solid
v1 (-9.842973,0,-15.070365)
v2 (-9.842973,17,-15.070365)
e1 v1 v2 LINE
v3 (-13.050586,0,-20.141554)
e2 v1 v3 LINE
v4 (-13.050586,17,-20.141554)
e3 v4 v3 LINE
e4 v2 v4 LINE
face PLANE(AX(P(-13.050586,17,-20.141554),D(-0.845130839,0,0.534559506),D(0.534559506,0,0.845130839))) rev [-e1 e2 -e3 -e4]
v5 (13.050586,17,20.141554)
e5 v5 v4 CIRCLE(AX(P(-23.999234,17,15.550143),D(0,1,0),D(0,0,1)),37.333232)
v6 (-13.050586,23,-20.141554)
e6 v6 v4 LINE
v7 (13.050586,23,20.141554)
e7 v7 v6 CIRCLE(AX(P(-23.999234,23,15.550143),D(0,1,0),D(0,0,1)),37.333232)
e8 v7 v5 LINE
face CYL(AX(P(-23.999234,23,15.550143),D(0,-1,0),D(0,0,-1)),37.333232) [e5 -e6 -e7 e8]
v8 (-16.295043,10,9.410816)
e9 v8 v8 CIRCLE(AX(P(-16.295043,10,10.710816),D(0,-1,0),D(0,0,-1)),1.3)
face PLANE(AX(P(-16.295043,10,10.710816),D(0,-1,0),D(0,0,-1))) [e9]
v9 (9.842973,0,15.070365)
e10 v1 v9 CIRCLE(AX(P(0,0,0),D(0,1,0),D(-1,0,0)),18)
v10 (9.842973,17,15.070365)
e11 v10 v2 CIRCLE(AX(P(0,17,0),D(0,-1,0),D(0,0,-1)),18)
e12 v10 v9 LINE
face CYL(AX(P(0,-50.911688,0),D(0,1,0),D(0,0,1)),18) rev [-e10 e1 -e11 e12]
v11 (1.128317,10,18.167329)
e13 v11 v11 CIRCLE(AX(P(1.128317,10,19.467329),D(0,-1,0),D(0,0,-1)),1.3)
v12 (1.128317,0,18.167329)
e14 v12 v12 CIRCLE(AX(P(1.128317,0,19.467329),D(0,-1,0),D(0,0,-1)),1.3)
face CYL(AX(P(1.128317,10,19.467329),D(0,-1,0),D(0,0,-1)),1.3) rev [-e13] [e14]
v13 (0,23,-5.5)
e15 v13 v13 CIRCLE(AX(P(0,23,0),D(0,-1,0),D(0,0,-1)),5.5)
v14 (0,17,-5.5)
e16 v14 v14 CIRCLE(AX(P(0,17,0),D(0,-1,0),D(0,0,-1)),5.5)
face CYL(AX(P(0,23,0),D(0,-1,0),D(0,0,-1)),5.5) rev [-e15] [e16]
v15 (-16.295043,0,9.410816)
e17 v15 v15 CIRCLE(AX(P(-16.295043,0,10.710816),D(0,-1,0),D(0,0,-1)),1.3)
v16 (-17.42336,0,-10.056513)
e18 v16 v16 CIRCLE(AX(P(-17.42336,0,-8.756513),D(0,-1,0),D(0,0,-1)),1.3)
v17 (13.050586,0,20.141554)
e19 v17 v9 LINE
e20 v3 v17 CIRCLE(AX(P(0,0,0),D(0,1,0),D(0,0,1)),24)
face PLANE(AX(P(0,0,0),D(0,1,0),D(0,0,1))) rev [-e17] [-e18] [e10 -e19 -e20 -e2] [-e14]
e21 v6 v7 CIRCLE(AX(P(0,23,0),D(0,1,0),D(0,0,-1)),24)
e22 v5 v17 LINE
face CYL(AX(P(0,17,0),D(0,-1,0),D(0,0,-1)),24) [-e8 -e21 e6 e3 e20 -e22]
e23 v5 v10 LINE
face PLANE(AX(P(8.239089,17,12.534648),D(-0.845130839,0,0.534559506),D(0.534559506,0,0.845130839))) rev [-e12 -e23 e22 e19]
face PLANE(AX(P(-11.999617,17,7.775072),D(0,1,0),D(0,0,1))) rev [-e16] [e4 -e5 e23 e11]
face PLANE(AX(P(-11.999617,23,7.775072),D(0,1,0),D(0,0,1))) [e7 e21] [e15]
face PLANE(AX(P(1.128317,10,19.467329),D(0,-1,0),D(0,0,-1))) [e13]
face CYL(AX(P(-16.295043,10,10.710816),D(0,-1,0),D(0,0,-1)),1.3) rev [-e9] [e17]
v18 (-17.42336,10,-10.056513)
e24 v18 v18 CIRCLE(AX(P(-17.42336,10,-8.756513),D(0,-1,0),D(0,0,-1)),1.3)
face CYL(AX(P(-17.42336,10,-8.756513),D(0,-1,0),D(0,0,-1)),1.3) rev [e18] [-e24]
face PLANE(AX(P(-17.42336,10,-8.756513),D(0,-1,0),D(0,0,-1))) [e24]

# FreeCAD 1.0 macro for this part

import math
import FreeCAD as App
import Part
import Sketcher
from FreeCAD import Vector
Q = App.Units.Quantity

doc = App.newDocument("Part")
body = doc.addObject("PartDesign::Body", "Body")

# Sketch on XZ plane
sketch1 = body.newObject("Sketcher::SketchObject", "Sketch")
sketch1.AttachmentSupport = (doc.getObject("XZ_Plane"), [""])
sketch1.MapMode = "FlatFace"
sketch1.addGeometry([
    Part.LineSegment(Vector(-8.239089, -12.534648, 0), Vector(-13.050586, -20.141554, 0)),
    Part.ArcOfCircle(Part.Circle(Vector(0, 0, 0), Vector(0, 0, 1), 24), math.radians(57.05905), math.radians(237.05905)),
    Part.LineSegment(Vector(13.050586, 20.141554, 0), Vector(8.239089, 12.534648, 0)),
    Part.ArcOfCircle(Part.Circle(Vector(0, 0, 0), Vector(0, 0, 1), 15), math.radians(56.682874), math.radians(236.682874)),
], False)
sketch1.addConstraint([
    Sketcher.Constraint("Coincident", 0, 2, 1, 2),
    Sketcher.Constraint("Coincident", 1, 1, 2, 1),
    Sketcher.Constraint("Coincident", 2, 2, 3, 1),
    Sketcher.Constraint("Coincident", 3, 2, 0, 1),
    Sketcher.Constraint("Coincident", 1, 3, -1, 1),
    Sketcher.Constraint("Coincident", 3, 3, -1, 1),
    Sketcher.Constraint("Parallel", 0, 2),
    Sketcher.Constraint("Equal", 0, 2),
    Sketcher.Constraint("Radius", 1, Q("24 mm")),
    Sketcher.Constraint("Radius", 3, Q("15 mm")),
    Sketcher.Constraint("DistanceX", -1, 1, 2, 2, Q("8.239089 mm")),
    Sketcher.Constraint("DistanceX", 0, 2, 1, 1, Q("26.101171 mm")),
])
pad1 = body.newObject("PartDesign::Pad", "Pad")
pad1.Profile = sketch1
pad1.Length = 17
pad1.Reversed = True

# Sketch on XZ plane
sketch2 = body.newObject("Sketcher::SketchObject", "Sketch001")
sketch2.AttachmentSupport = (doc.getObject("XZ_Plane"), [""])
sketch2.MapMode = "FlatFace"
sketch2.AttachmentOffset = App.Placement(Vector(0, 0, -17), App.Rotation())
sketch2.addGeometry([
    Part.ArcOfCircle(Part.Circle(Vector(0, 0, 0), Vector(0, 0, 1), 24), math.radians(57), math.radians(237)),
    Part.ArcOfCircle(Part.Circle(Vector(-24, 16, 0), Vector(0, 0, 1), 37), math.radians(-73), math.radians(7)),
], False)
sketch2.addConstraint([
    Sketcher.Constraint("Coincident", 0, 1, 1, 2),
    Sketcher.Constraint("Coincident", 1, 1, 0, 2),
    Sketcher.Constraint("Coincident", 0, 3, -1, 1),
    Sketcher.Constraint("Radius", 0, Q("24 mm")),
    Sketcher.Constraint("Radius", 1, Q("37.333232 mm")),
    Sketcher.Constraint("DistanceX", 1, 3, 0, 1, Q("37.04982 mm")),
    Sketcher.Constraint("DistanceX", 1, 3, -1, 1, Q("23.999234 mm")),
])
pad2 = body.newObject("PartDesign::Pad", "Pad001")
pad2.Profile = sketch2
pad2.Length = 6
pad2.Reversed = True

# Sketch on XZ plane
sketch3 = body.newObject("Sketcher::SketchObject", "Sketch002")
sketch3.AttachmentSupport = (doc.getObject("XZ_Plane"), [""])
sketch3.MapMode = "FlatFace"
sketch3.AttachmentOffset = App.Placement(Vector(0, 0, -23), App.Rotation())
sketch3.addGeometry(Part.Circle(Vector(0, 0, 0), Vector(0, 0, 1), 4.5), False)
sketch3.addConstraint([
    Sketcher.Constraint("Coincident", 0, 3, -1, 1),
    Sketcher.Constraint("Diameter", 0, Q("9 mm")),
])
pocket1 = body.newObject("PartDesign::Pocket", "Pocket")
pocket1.Profile = sketch3
pocket1.Length = 6
pocket1.Reversed = True

# Sketch on XZ plane
sketch4 = body.newObject("Sketcher::SketchObject", "Sketch003")
sketch4.AttachmentSupport = (doc.getObject("XZ_Plane"), [""])
sketch4.MapMode = "FlatFace"
sketch4.addGeometry([
    Part.Circle(Vector(-17.4, -8.8, 0), Vector(0, 0, 1), 1.3),
    Part.Circle(Vector(-16.3, 10.7, 0), Vector(0, 0, 1), 1.3),
    Part.Circle(Vector(1.1, 19.5, 0), Vector(0, 0, 1), 1.3),
], False)
sketch4.addConstraint([
    Sketcher.Constraint("Equal", 0, 1),
    Sketcher.Constraint("Equal", 1, 2),
    Sketcher.Constraint("Diameter", 0, Q("2.6 mm")),
    Sketcher.Constraint("DistanceX", 0, 3, -1, 1, Q("17.42336 mm")),
    Sketcher.Constraint("DistanceY", -1, 1, 2, 3, Q("19.467329 mm")),
    Sketcher.Constraint("DistanceY", 0, 3, 1, 3, Q("19.467329 mm")),
    Sketcher.Constraint("DistanceX", 1, 3, 2, 3, Q("17.42336 mm")),
    Sketcher.Constraint("DistanceY", 0, 3, -1, 1, Q("8.756513 mm")),
    Sketcher.Constraint("DistanceX", 1, 3, -1, 1, Q("16.295043 mm")),
])
pocket2 = body.newObject("PartDesign::Pocket", "Pocket001")
pocket2.Profile = sketch4
pocket2.Length = 10

# Sketch on XZ plane
sketch5 = body.newObject("Sketcher::SketchObject", "Sketch004")
sketch5.AttachmentSupport = (doc.getObject("XZ_Plane"), [""])
sketch5.MapMode = "FlatFace"
sketch5.AttachmentOffset = App.Placement(Vector(0, 0, -17), App.Rotation())
sketch5.addGeometry(Part.Circle(Vector(0, 0, 0), Vector(0, 0, 1), 6), False)
sketch5.addConstraint([
    Sketcher.Constraint("Coincident", 0, 3, -1, 1),
    Sketcher.Constraint("Diameter", 0, Q("11 mm")),
])
pocket3 = body.newObject("PartDesign::Pocket", "Pocket002")
pocket3.Profile = sketch5
pocket3.Type = "ThroughAll"

# Sketch on XZ plane
sketch6 = body.newObject("Sketcher::SketchObject", "Sketch005")
sketch6.AttachmentSupport = (doc.getObject("XZ_Plane"), [""])
sketch6.MapMode = "FlatFace"
sketch6.AttachmentOffset = App.Placement(Vector(0, 0, -17), App.Rotation())
sketch6.addGeometry(Part.Circle(Vector(0, 0, 0), Vector(0, 0, 1), 18), False)
sketch6.addConstraint([
    Sketcher.Constraint("Coincident", 0, 3, -1, 1),
    Sketcher.Constraint("Diameter", 0, Q("36 mm")),
])
pocket4 = body.newObject("PartDesign::Pocket", "Pocket003")
pocket4.Profile = sketch6
pocket4.Length = 17
pocket4.Reversed = True

doc.recompute()
